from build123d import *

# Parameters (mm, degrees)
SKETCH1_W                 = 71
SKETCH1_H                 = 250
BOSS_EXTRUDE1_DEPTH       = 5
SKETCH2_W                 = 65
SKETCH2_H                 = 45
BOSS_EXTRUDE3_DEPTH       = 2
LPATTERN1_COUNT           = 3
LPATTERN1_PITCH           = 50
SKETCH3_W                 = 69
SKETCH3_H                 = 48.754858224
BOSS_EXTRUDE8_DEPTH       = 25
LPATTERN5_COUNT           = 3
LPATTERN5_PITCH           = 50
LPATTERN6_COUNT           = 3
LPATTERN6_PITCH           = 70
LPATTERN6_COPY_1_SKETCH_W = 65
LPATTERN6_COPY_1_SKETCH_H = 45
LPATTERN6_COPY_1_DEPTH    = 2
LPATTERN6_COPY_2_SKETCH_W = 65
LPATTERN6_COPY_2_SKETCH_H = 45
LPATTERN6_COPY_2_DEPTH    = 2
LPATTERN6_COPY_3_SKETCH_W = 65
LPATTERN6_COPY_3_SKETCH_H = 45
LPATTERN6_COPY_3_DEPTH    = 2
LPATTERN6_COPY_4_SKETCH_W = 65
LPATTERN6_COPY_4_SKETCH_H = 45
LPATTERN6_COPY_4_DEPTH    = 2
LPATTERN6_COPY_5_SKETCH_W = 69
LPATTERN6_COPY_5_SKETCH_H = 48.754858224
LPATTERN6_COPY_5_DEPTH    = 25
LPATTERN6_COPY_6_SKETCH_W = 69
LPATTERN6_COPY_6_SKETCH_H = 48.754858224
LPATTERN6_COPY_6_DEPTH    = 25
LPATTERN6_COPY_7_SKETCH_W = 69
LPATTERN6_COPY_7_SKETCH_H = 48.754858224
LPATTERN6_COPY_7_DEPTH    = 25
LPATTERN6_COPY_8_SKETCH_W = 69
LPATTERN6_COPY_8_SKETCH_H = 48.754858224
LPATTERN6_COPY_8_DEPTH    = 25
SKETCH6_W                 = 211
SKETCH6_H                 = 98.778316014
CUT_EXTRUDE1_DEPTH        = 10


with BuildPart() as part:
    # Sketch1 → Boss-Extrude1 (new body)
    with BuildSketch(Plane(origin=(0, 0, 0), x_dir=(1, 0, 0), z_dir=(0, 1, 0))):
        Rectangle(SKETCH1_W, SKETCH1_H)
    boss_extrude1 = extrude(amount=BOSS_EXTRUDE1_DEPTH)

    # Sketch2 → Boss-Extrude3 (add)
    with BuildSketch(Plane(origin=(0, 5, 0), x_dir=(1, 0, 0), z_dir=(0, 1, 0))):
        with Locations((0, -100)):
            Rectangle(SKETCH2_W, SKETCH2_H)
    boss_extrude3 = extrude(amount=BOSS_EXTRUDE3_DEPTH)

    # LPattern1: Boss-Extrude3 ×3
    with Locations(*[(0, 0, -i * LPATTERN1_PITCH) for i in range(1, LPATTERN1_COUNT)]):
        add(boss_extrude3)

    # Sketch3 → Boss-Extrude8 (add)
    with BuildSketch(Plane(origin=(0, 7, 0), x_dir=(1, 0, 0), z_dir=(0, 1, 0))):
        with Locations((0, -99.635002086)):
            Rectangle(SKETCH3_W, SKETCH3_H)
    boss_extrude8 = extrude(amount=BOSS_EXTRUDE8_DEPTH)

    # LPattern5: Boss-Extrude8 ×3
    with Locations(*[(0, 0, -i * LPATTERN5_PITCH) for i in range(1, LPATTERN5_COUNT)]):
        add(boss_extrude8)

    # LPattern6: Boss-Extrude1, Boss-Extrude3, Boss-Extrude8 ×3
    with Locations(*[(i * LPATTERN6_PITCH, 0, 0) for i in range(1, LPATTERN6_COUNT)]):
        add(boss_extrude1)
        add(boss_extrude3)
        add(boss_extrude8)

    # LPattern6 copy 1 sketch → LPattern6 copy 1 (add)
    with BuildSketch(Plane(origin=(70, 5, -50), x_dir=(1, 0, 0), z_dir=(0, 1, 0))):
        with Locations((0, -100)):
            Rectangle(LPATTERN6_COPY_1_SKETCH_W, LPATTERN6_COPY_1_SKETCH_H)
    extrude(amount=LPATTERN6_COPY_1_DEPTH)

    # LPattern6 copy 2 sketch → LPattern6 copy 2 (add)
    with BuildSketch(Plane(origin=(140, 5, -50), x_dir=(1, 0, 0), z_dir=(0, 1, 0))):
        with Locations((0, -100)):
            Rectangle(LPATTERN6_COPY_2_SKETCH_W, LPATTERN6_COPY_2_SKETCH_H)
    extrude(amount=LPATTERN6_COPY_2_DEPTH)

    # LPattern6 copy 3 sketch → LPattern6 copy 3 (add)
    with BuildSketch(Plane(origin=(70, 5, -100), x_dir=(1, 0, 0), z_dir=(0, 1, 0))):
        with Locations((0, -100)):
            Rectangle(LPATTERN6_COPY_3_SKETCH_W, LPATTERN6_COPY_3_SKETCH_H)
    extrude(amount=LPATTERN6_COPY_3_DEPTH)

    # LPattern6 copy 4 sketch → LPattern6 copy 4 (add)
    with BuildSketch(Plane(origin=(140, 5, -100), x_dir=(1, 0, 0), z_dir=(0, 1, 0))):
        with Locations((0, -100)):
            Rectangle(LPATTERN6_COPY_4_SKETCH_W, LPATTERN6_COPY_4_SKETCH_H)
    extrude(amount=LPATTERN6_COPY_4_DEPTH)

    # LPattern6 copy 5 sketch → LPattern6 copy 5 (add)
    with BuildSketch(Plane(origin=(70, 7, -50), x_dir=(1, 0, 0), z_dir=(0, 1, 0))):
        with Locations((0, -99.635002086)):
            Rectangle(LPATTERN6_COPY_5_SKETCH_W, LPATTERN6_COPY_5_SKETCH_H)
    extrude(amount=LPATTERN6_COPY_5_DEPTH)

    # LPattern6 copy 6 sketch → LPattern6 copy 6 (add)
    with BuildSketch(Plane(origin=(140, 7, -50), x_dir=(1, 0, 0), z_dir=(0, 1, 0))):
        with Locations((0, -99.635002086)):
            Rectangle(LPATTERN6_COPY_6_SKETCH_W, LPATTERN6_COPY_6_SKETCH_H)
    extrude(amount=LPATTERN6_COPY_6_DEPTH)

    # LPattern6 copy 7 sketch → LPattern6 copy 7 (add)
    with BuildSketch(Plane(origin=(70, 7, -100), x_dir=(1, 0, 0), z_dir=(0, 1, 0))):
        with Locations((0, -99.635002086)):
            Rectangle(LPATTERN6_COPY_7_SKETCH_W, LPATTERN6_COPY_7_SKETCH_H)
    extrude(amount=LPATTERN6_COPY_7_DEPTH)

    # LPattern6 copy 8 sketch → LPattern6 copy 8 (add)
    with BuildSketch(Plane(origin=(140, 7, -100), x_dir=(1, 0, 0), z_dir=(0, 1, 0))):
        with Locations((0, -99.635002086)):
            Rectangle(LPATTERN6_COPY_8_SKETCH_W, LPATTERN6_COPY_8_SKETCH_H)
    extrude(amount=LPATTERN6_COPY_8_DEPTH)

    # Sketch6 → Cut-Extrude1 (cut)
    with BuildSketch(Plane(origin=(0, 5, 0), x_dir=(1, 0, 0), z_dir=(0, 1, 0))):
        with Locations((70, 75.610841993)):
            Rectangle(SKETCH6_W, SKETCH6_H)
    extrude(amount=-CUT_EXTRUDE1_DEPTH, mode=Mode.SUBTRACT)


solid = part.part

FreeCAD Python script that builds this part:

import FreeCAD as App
import Part
import Sketcher

doc = App.newDocument("Part")
body = doc.addObject("PartDesign::Body", "Body")

# Sketch on XZ plane
sketch1 = doc.addObject("Sketcher::SketchObject", "Sketch")
body.addObject(sketch1)
sketch1.AttachmentSupport = (doc.XZ_Plane, [""])
sketch1.MapMode = "FlatFace"
sketch1.addGeometry(Part.LineSegment(App.Vector(-36, -125, 0), App.Vector(-36, 125, 0)), False)
sketch1.addGeometry(Part.LineSegment(App.Vector(-36, 125, 0), App.Vector(36, 125, 0)), False)
sketch1.addGeometry(Part.LineSegment(App.Vector(36, 125, 0), App.Vector(36, -125, 0)), False)
sketch1.addGeometry(Part.LineSegment(App.Vector(36, -125, 0), App.Vector(-36, -125, 0)), False)
sketch1.addConstraint(Sketcher.Constraint("Coincident", 0, 2, 1, 1))
sketch1.addConstraint(Sketcher.Constraint("Coincident", 1, 2, 2, 1))
sketch1.addConstraint(Sketcher.Constraint("Coincident", 2, 2, 3, 1))
sketch1.addConstraint(Sketcher.Constraint("Coincident", 3, 2, 0, 1))
sketch1.addConstraint(Sketcher.Constraint("Vertical", 0))
sketch1.addConstraint(Sketcher.Constraint("Horizontal", 1))
sketch1.addConstraint(Sketcher.Constraint("Vertical", 2))
sketch1.addConstraint(Sketcher.Constraint("Horizontal", 3))
sketch1.addConstraint(Sketcher.Constraint("Symmetric", 0, 2, 2, 2, -1, 1))
sketch1.addConstraint(Sketcher.Constraint("DistanceX", 1, 1, 1, 2, 71.0))
sketch1.addConstraint(Sketcher.Constraint("DistanceY", 0, 1, 0, 2, 250.0))
pad1 = doc.addObject("PartDesign::Pad", "Pad")
body.addObject(pad1)
pad1.Profile = sketch1
pad1.Length = 5
pad1.Reversed = True

# Sketch on XZ plane
sketch2 = doc.addObject("Sketcher::SketchObject", "Sketch001")
body.addObject(sketch2)
sketch2.AttachmentSupport = (doc.XZ_Plane, [""])
sketch2.MapMode = "FlatFace"
sketch2.AttachmentOffset = App.Placement(App.Vector(0, 0, -5), App.Rotation())
sketch2.addGeometry(Part.LineSegment(App.Vector(-32, 78, 0), App.Vector(-32, 122, 0)), False)
sketch2.addGeometry(Part.LineSegment(App.Vector(-32, 122, 0), App.Vector(32, 122, 0)), False)
sketch2.addGeometry(Part.LineSegment(App.Vector(32, 122, 0), App.Vector(32, 78, 0)), False)
sketch2.addGeometry(Part.LineSegment(App.Vector(32, 78, 0), App.Vector(-32, 78, 0)), False)
sketch2.addConstraint(Sketcher.Constraint("Coincident", 0, 2, 1, 1))
sketch2.addConstraint(Sketcher.Constraint("Coincident", 1, 2, 2, 1))
sketch2.addConstraint(Sketcher.Constraint("Coincident", 2, 2, 3, 1))
sketch2.addConstraint(Sketcher.Constraint("Coincident", 3, 2, 0, 1))
sketch2.addConstraint(Sketcher.Constraint("Vertical", 0))
sketch2.addConstraint(Sketcher.Constraint("Horizontal", 1))
sketch2.addConstraint(Sketcher.Constraint("Vertical", 2))
sketch2.addConstraint(Sketcher.Constraint("Horizontal", 3))
sketch2.addConstraint(Sketcher.Constraint("DistanceX", 1, 1, 1, 2, 65.0))
sketch2.addConstraint(Sketcher.Constraint("DistanceY", 0, 1, 0, 2, 45.0))
sketch2.addConstraint(Sketcher.Constraint("DistanceX", 0, 2, -1, 1, 32.5))
sketch2.addConstraint(Sketcher.Constraint("DistanceY", -1, 1, 0, 2, 122.5))
pad2 = doc.addObject("PartDesign::Pad", "Pad001")
body.addObject(pad2)
pad2.Profile = sketch2
pad2.Length = 2
pad2.Reversed = True
doc.recompute()

linearpattern = doc.addObject("PartDesign::LinearPattern", "LinearPattern")
body.addObject(linearpattern)
linearpattern.Originals = [pad2]
linearpattern.Direction = (doc.Z_Axis, [""])
linearpattern.Mode = "offset"
linearpattern.Offset = 50
linearpattern.Occurrences = 3
linearpattern.Reversed = True
body.Tip = linearpattern

# Sketch on XZ plane
sketch3 = doc.addObject("Sketcher::SketchObject", "Sketch002")
body.addObject(sketch3)
sketch3.AttachmentSupport = (doc.XZ_Plane, [""])
sketch3.MapMode = "FlatFace"
sketch3.AttachmentOffset = App.Placement(App.Vector(0, 0, -7), App.Rotation())
sketch3.addGeometry(Part.LineSegment(App.Vector(-34, 75, 0), App.Vector(-34, 124, 0)), False)
sketch3.addGeometry(Part.LineSegment(App.Vector(-34, 124, 0), App.Vector(34, 124, 0)), False)
sketch3.addGeometry(Part.LineSegment(App.Vector(34, 124, 0), App.Vector(34, 75, 0)), False)
sketch3.addGeometry(Part.LineSegment(App.Vector(34, 75, 0), App.Vector(-34, 75, 0)), False)
sketch3.addConstraint(Sketcher.Constraint("Coincident", 0, 2, 1, 1))
sketch3.addConstraint(Sketcher.Constraint("Coincident", 1, 2, 2, 1))
sketch3.addConstraint(Sketcher.Constraint("Coincident", 2, 2, 3, 1))
sketch3.addConstraint(Sketcher.Constraint("Coincident", 3, 2, 0, 1))
sketch3.addConstraint(Sketcher.Constraint("Vertical", 0))
sketch3.addConstraint(Sketcher.Constraint("Horizontal", 1))
sketch3.addConstraint(Sketcher.Constraint("Vertical", 2))
sketch3.addConstraint(Sketcher.Constraint("Horizontal", 3))
sketch3.addConstraint(Sketcher.Constraint("DistanceX", 1, 1, 1, 2, 69.0))
sketch3.addConstraint(Sketcher.Constraint("DistanceX", 0, 2, -1, 1, 34.5))
sketch3.addConstraint(Sketcher.Constraint("DistanceY", 0, 1, 0, 2, 48.754858))
sketch3.addConstraint(Sketcher.Constraint("DistanceY", -1, 1, 0, 2, 124.012431))
pad3 = doc.addObject("PartDesign::Pad", "Pad002")
body.addObject(pad3)
pad3.Profile = sketch3
pad3.Length = 25
pad3.Reversed = True
doc.recompute()

linearpattern2 = doc.addObject("PartDesign::LinearPattern", "LinearPattern001")
body.addObject(linearpattern2)
linearpattern2.Originals = [pad3]
linearpattern2.Direction = (doc.Z_Axis, [""])
linearpattern2.Mode = "offset"
linearpattern2.Offset = 50
linearpattern2.Occurrences = 3
linearpattern2.Reversed = True
body.Tip = linearpattern2
doc.recompute()

linearpattern3 = doc.addObject("PartDesign::LinearPattern", "LinearPattern002")
body.addObject(linearpattern3)
linearpattern3.Originals = [pad1, pad2, pad3]
linearpattern3.Direction = (doc.X_Axis, [""])
linearpattern3.Mode = "offset"
linearpattern3.Offset = 70
linearpattern3.Occurrences = 3
body.Tip = linearpattern3

# Sketch on XZ plane
sketch4 = doc.addObject("Sketcher::SketchObject", "Sketch003")
body.addObject(sketch4)
sketch4.AttachmentSupport = (doc.XZ_Plane, [""])
sketch4.MapMode = "FlatFace"
sketch4.AttachmentOffset = App.Placement(App.Vector(0, 0, -5), App.Rotation())
sketch4.addGeometry(Part.LineSegment(App.Vector(38, 28, 0), App.Vector(38, 72, 0)), False)
sketch4.addGeometry(Part.LineSegment(App.Vector(38, 72, 0), App.Vector(102, 72, 0)), False)
sketch4.addGeometry(Part.LineSegment(App.Vector(102, 72, 0), App.Vector(102, 28, 0)), False)
sketch4.addGeometry(Part.LineSegment(App.Vector(102, 28, 0), App.Vector(38, 28, 0)), False)
sketch4.addConstraint(Sketcher.Constraint("Coincident", 0, 2, 1, 1))
sketch4.addConstraint(Sketcher.Constraint("Coincident", 1, 2, 2, 1))
sketch4.addConstraint(Sketcher.Constraint("Coincident", 2, 2, 3, 1))
sketch4.addConstraint(Sketcher.Constraint("Coincident", 3, 2, 0, 1))
sketch4.addConstraint(Sketcher.Constraint("Vertical", 0))
sketch4.addConstraint(Sketcher.Constraint("Horizontal", 1))
sketch4.addConstraint(Sketcher.Constraint("Vertical", 2))
sketch4.addConstraint(Sketcher.Constraint("Horizontal", 3))
sketch4.addConstraint(Sketcher.Constraint("DistanceX", 1, 1, 1, 2, 65.0))
sketch4.addConstraint(Sketcher.Constraint("DistanceY", 0, 1, 0, 2, 45.0))
sketch4.addConstraint(Sketcher.Constraint("DistanceX", -1, 1, 0, 2, 37.5))
sketch4.addConstraint(Sketcher.Constraint("DistanceY", -1, 1, 0, 2, 72.5))
pad4 = doc.addObject("PartDesign::Pad", "Pad003")
body.addObject(pad4)
pad4.Profile = sketch4
pad4.Length = 2
pad4.Reversed = True

# Sketch on XZ plane
sketch5 = doc.addObject("Sketcher::SketchObject", "Sketch004")
body.addObject(sketch5)
sketch5.AttachmentSupport = (doc.XZ_Plane, [""])
sketch5.MapMode = "FlatFace"
sketch5.AttachmentOffset = App.Placement(App.Vector(0, 0, -5), App.Rotation())
sketch5.addGeometry(Part.LineSegment(App.Vector(108, 28, 0), App.Vector(108, 72, 0)), False)
sketch5.addGeometry(Part.LineSegment(App.Vector(108, 72, 0), App.Vector(172, 72, 0)), False)
sketch5.addGeometry(Part.LineSegment(App.Vector(172, 72, 0), App.Vector(172, 28, 0)), False)
sketch5.addGeometry(Part.LineSegment(App.Vector(172, 28, 0), App.Vector(108, 28, 0)), False)
sketch5.addConstraint(Sketcher.Constraint("Coincident", 0, 2, 1, 1))
sketch5.addConstraint(Sketcher.Constraint("Coincident", 1, 2, 2, 1))
sketch5.addConstraint(Sketcher.Constraint("Coincident", 2, 2, 3, 1))
sketch5.addConstraint(Sketcher.Constraint("Coincident", 3, 2, 0, 1))
sketch5.addConstraint(Sketcher.Constraint("Vertical", 0))
sketch5.addConstraint(Sketcher.Constraint("Horizontal", 1))
sketch5.addConstraint(Sketcher.Constraint("Vertical", 2))
sketch5.addConstraint(Sketcher.Constraint("Horizontal", 3))
sketch5.addConstraint(Sketcher.Constraint("DistanceX", 1, 1, 1, 2, 65.0))
sketch5.addConstraint(Sketcher.Constraint("DistanceY", 0, 1, 0, 2, 45.0))
sketch5.addConstraint(Sketcher.Constraint("DistanceX", -1, 1, 0, 2, 107.5))
sketch5.addConstraint(Sketcher.Constraint("DistanceY", -1, 1, 0, 2, 72.5))
pad5 = doc.addObject("PartDesign::Pad", "Pad004")
body.addObject(pad5)
pad5.Profile = sketch5
pad5.Length = 2
pad5.Reversed = True

# Sketch on XZ plane
sketch6 = doc.addObject("Sketcher::SketchObject", "Sketch005")
body.addObject(sketch6)
sketch6.AttachmentSupport = (doc.XZ_Plane, [""])
sketch6.MapMode = "FlatFace"
sketch6.AttachmentOffset = App.Placement(App.Vector(0, 0, -5), App.Rotation())
sketch6.addGeometry(Part.LineSegment(App.Vector(38, -22, 0), App.Vector(38, 22, 0)), False)
sketch6.addGeometry(Part.LineSegment(App.Vector(38, 22, 0), App.Vector(102, 22, 0)), False)
sketch6.addGeometry(Part.LineSegment(App.Vector(102, 22, 0), App.Vector(102, -22, 0)), False)
sketch6.addGeometry(Part.LineSegment(App.Vector(102, -22, 0), App.Vector(38, -22, 0)), False)
sketch6.addConstraint(Sketcher.Constraint("Coincident", 0, 2, 1, 1))
sketch6.addConstraint(Sketcher.Constraint("Coincident", 1, 2, 2, 1))
sketch6.addConstraint(Sketcher.Constraint("Coincident", 2, 2, 3, 1))
sketch6.addConstraint(Sketcher.Constraint("Coincident", 3, 2, 0, 1))
sketch6.addConstraint(Sketcher.Constraint("Vertical", 0))
sketch6.addConstraint(Sketcher.Constraint("Horizontal", 1))
sketch6.addConstraint(Sketcher.Constraint("Vertical", 2))
sketch6.addConstraint(Sketcher.Constraint("Horizontal", 3))
sketch6.addConstraint(Sketcher.Constraint("DistanceX", 1, 1, 1, 2, 65.0))
sketch6.addConstraint(Sketcher.Constraint("DistanceY", 0, 1, 0, 2, 45.0))
sketch6.addConstraint(Sketcher.Constraint("DistanceX", -1, 1, 0, 2, 37.5))
sketch6.addConstraint(Sketcher.Constraint("DistanceY", -1, 1, 0, 2, 22.5))
pad6 = doc.addObject("PartDesign::Pad", "Pad005")
body.addObject(pad6)
pad6.Profile = sketch6
pad6.Length = 2
pad6.Reversed = True

# Sketch on XZ plane
sketch7 = doc.addObject("Sketcher::SketchObject", "Sketch006")
body.addObject(sketch7)
sketch7.AttachmentSupport = (doc.XZ_Plane, [""])
sketch7.MapMode = "FlatFace"
sketch7.AttachmentOffset = App.Placement(App.Vector(0, 0, -5), App.Rotation())
sketch7.addGeometry(Part.LineSegment(App.Vector(108, -22, 0), App.Vector(108, 22, 0)), False)
sketch7.addGeometry(Part.LineSegment(App.Vector(108, 22, 0), App.Vector(172, 22, 0)), False)
sketch7.addGeometry(Part.LineSegment(App.Vector(172, 22, 0), App.Vector(172, -22, 0)), False)
sketch7.addGeometry(Part.LineSegment(App.Vector(172, -22, 0), App.Vector(108, -22, 0)), False)
sketch7.addConstraint(Sketcher.Constraint("Coincident", 0, 2, 1, 1))
sketch7.addConstraint(Sketcher.Constraint("Coincident", 1, 2, 2, 1))
sketch7.addConstraint(Sketcher.Constraint("Coincident", 2, 2, 3, 1))
sketch7.addConstraint(Sketcher.Constraint("Coincident", 3, 2, 0, 1))
sketch7.addConstraint(Sketcher.Constraint("Vertical", 0))
sketch7.addConstraint(Sketcher.Constraint("Horizontal", 1))
sketch7.addConstraint(Sketcher.Constraint("Vertical", 2))
sketch7.addConstraint(Sketcher.Constraint("Horizontal", 3))
sketch7.addConstraint(Sketcher.Constraint("DistanceX", 1, 1, 1, 2, 65.0))
sketch7.addConstraint(Sketcher.Constraint("DistanceY", 0, 1, 0, 2, 45.0))
sketch7.addConstraint(Sketcher.Constraint("DistanceX", -1, 1, 0, 2, 107.5))
sketch7.addConstraint(Sketcher.Constraint("DistanceY", -1, 1, 0, 2, 22.5))
pad7 = doc.addObject("PartDesign::Pad", "Pad006")
body.addObject(pad7)
pad7.Profile = sketch7
pad7.Length = 2
pad7.Reversed = True

# Sketch on XZ plane
sketch8 = doc.addObject("Sketcher::SketchObject", "Sketch007")
body.addObject(sketch8)
sketch8.AttachmentSupport = (doc.XZ_Plane, [""])
sketch8.MapMode = "FlatFace"
sketch8.AttachmentOffset = App.Placement(App.Vector(0, 0, -7), App.Rotation())
sketch8.addGeometry(Part.LineSegment(App.Vector(36, 25, 0), App.Vector(36, 74, 0)), False)
sketch8.addGeometry(Part.LineSegment(App.Vector(36, 74, 0), App.Vector(104, 74, 0)), False)
sketch8.addGeometry(Part.LineSegment(App.Vector(104, 74, 0), App.Vector(104, 25, 0)), False)
sketch8.addGeometry(Part.LineSegment(App.Vector(104, 25, 0), App.Vector(36, 25, 0)), False)
sketch8.addConstraint(Sketcher.Constraint("Coincident", 0, 2, 1, 1))
sketch8.addConstraint(Sketcher.Constraint("Coincident", 1, 2, 2, 1))
sketch8.addConstraint(Sketcher.Constraint("Coincident", 2, 2, 3, 1))
sketch8.addConstraint(Sketcher.Constraint("Coincident", 3, 2, 0, 1))
sketch8.addConstraint(Sketcher.Constraint("Vertical", 0))
sketch8.addConstraint(Sketcher.Constraint("Horizontal", 1))
sketch8.addConstraint(Sketcher.Constraint("Vertical", 2))
sketch8.addConstraint(Sketcher.Constraint("Horizontal", 3))
sketch8.addConstraint(Sketcher.Constraint("DistanceX", 1, 1, 1, 2, 69.0))
sketch8.addConstraint(Sketcher.Constraint("DistanceX", -1, 1, 0, 2, 35.5))
sketch8.addConstraint(Sketcher.Constraint("DistanceY", 0, 1, 0, 2, 48.754858))
sketch8.addConstraint(Sketcher.Constraint("DistanceY", -1, 1, 0, 2, 74.012431))
pad8 = doc.addObject("PartDesign::Pad", "Pad007")
body.addObject(pad8)
pad8.Profile = sketch8
pad8.Length = 25
pad8.Reversed = True

# Sketch on XZ plane
sketch9 = doc.addObject("Sketcher::SketchObject", "Sketch008")
body.addObject(sketch9)
sketch9.AttachmentSupport = (doc.XZ_Plane, [""])
sketch9.MapMode = "FlatFace"
sketch9.AttachmentOffset = App.Placement(App.Vector(0, 0, -7), App.Rotation())
sketch9.addGeometry(Part.LineSegment(App.Vector(106, 25, 0), App.Vector(106, 74, 0)), False)
sketch9.addGeometry(Part.LineSegment(App.Vector(106, 74, 0), App.Vector(174, 74, 0)), False)
sketch9.addGeometry(Part.LineSegment(App.Vector(174, 74, 0), App.Vector(174, 25, 0)), False)
sketch9.addGeometry(Part.LineSegment(App.Vector(174, 25, 0), App.Vector(106, 25, 0)), False)
sketch9.addConstraint(Sketcher.Constraint("Coincident", 0, 2, 1, 1))
sketch9.addConstraint(Sketcher.Constraint("Coincident", 1, 2, 2, 1))
sketch9.addConstraint(Sketcher.Constraint("Coincident", 2, 2, 3, 1))
sketch9.addConstraint(Sketcher.Constraint("Coincident", 3, 2, 0, 1))
sketch9.addConstraint(Sketcher.Constraint("Vertical", 0))
sketch9.addConstraint(Sketcher.Constraint("Horizontal", 1))
sketch9.addConstraint(Sketcher.Constraint("Vertical", 2))
sketch9.addConstraint(Sketcher.Constraint("Horizontal", 3))
sketch9.addConstraint(Sketcher.Constraint("DistanceX", 1, 1, 1, 2, 69.0))
sketch9.addConstraint(Sketcher.Constraint("DistanceX", -1, 1, 0, 2, 105.5))
sketch9.addConstraint(Sketcher.Constraint("DistanceY", 0, 1, 0, 2, 48.754858))
sketch9.addConstraint(Sketcher.Constraint("DistanceY", -1, 1, 0, 2, 74.012431))
pad9 = doc.addObject("PartDesign::Pad", "Pad008")
body.addObject(pad9)
pad9.Profile = sketch9
pad9.Length = 25
pad9.Reversed = True

# Sketch on XZ plane
sketch10 = doc.addObject("Sketcher::SketchObject", "Sketch009")
body.addObject(sketch10)
sketch10.AttachmentSupport = (doc.XZ_Plane, [""])
sketch10.MapMode = "FlatFace"
sketch10.AttachmentOffset = App.Placement(App.Vector(0, 0, -7), App.Rotation())
sketch10.addGeometry(Part.LineSegment(App.Vector(36, -25, 0), App.Vector(36, 24, 0)), False)
sketch10.addGeometry(Part.LineSegment(App.Vector(36, 24, 0), App.Vector(104, 24, 0)), False)
sketch10.addGeometry(Part.LineSegment(App.Vector(104, 24, 0), App.Vector(104, -25, 0)), False)
sketch10.addGeometry(Part.LineSegment(App.Vector(104, -25, 0), App.Vector(36, -25, 0)), False)
sketch10.addConstraint(Sketcher.Constraint("Coincident", 0, 2, 1, 1))
sketch10.addConstraint(Sketcher.Constraint("Coincident", 1, 2, 2, 1))
sketch10.addConstraint(Sketcher.Constraint("Coincident", 2, 2, 3, 1))
sketch10.addConstraint(Sketcher.Constraint("Coincident", 3, 2, 0, 1))
sketch10.addConstraint(Sketcher.Constraint("Vertical", 0))
sketch10.addConstraint(Sketcher.Constraint("Horizontal", 1))
sketch10.addConstraint(Sketcher.Constraint("Vertical", 2))
sketch10.addConstraint(Sketcher.Constraint("Horizontal", 3))
sketch10.addConstraint(Sketcher.Constraint("DistanceX", 1, 1, 1, 2, 69.0))
sketch10.addConstraint(Sketcher.Constraint("DistanceX", -1, 1, 0, 2, 35.5))
sketch10.addConstraint(Sketcher.Constraint("DistanceY", 0, 1, 0, 2, 48.754858))
sketch10.addConstraint(Sketcher.Constraint("DistanceY", -1, 1, 0, 2, 24.012431))
pad10 = doc.addObject("PartDesign::Pad", "Pad009")
body.addObject(pad10)
pad10.Profile = sketch10
pad10.Length = 25
pad10.Reversed = True

# Sketch on XZ plane
sketch11 = doc.addObject("Sketcher::SketchObject", "Sketch010")
body.addObject(sketch11)
sketch11.AttachmentSupport = (doc.XZ_Plane, [""])
sketch11.MapMode = "FlatFace"
sketch11.AttachmentOffset = App.Placement(App.Vector(0, 0, -7), App.Rotation())
sketch11.addGeometry(Part.LineSegment(App.Vector(106, -25, 0), App.Vector(106, 24, 0)), False)
sketch11.addGeometry(Part.LineSegment(App.Vector(106, 24, 0), App.Vector(174, 24, 0)), False)
sketch11.addGeometry(Part.LineSegment(App.Vector(174, 24, 0), App.Vector(174, -25, 0)), False)
sketch11.addGeometry(Part.LineSegment(App.Vector(174, -25, 0), App.Vector(106, -25, 0)), False)
sketch11.addConstraint(Sketcher.Constraint("Coincident", 0, 2, 1, 1))
sketch11.addConstraint(Sketcher.Constraint("Coincident", 1, 2, 2, 1))
sketch11.addConstraint(Sketcher.Constraint("Coincident", 2, 2, 3, 1))
sketch11.addConstraint(Sketcher.Constraint("Coincident", 3, 2, 0, 1))
sketch11.addConstraint(Sketcher.Constraint("Vertical", 0))
sketch11.addConstraint(Sketcher.Constraint("Horizontal", 1))
sketch11.addConstraint(Sketcher.Constraint("Vertical", 2))
sketch11.addConstraint(Sketcher.Constraint("Horizontal", 3))
sketch11.addConstraint(Sketcher.Constraint("DistanceX", 1, 1, 1, 2, 69.0))
sketch11.addConstraint(Sketcher.Constraint("DistanceX", -1, 1, 0, 2, 105.5))
sketch11.addConstraint(Sketcher.Constraint("DistanceY", 0, 1, 0, 2, 48.754858))
sketch11.addConstraint(Sketcher.Constraint("DistanceY", -1, 1, 0, 2, 24.012431))
pad11 = doc.addObject("PartDesign::Pad", "Pad010")
body.addObject(pad11)
pad11.Profile = sketch11
pad11.Length = 25
pad11.Reversed = True

# Sketch on XZ plane
sketch12 = doc.addObject("Sketcher::SketchObject", "Sketch011")
body.addObject(sketch12)
sketch12.AttachmentSupport = (doc.XZ_Plane, [""])
sketch12.MapMode = "FlatFace"
sketch12.AttachmentOffset = App.Placement(App.Vector(0, 0, -5), App.Rotation())
sketch12.addGeometry(Part.LineSegment(App.Vector(-36, -125, 0), App.Vector(-36, -26, 0)), False)
sketch12.addGeometry(Part.LineSegment(App.Vector(-36, -26, 0), App.Vector(176, -26, 0)), False)
sketch12.addGeometry(Part.LineSegment(App.Vector(176, -26, 0), App.Vector(176, -125, 0)), False)
sketch12.addGeometry(Part.LineSegment(App.Vector(176, -125, 0), App.Vector(-36, -125, 0)), False)
sketch12.addConstraint(Sketcher.Constraint("Coincident", 0, 2, 1, 1))
sketch12.addConstraint(Sketcher.Constraint("Coincident", 1, 2, 2, 1))
sketch12.addConstraint(Sketcher.Constraint("Coincident", 2, 2, 3, 1))
sketch12.addConstraint(Sketcher.Constraint("Coincident", 3, 2, 0, 1))
sketch12.addConstraint(Sketcher.Constraint("Vertical", 0))
sketch12.addConstraint(Sketcher.Constraint("Horizontal", 1))
sketch12.addConstraint(Sketcher.Constraint("Vertical", 2))
sketch12.addConstraint(Sketcher.Constraint("Horizontal", 3))
sketch12.addConstraint(Sketcher.Constraint("DistanceX", 1, 1, 1, 2, 211.0))
sketch12.addConstraint(Sketcher.Constraint("DistanceY", 2, 2, -1, 1, 125.0))
sketch12.addConstraint(Sketcher.Constraint("DistanceX", 0, 2, -1, 1, 35.5))
sketch12.addConstraint(Sketcher.Constraint("DistanceY", 0, 1, 0, 2, 98.778316))
pocket1 = doc.addObject("PartDesign::Pocket", "Pocket")
body.addObject(pocket1)
pocket1.Profile = sketch12
pocket1.Length = 10
pocket1.Reversed = True

doc.recompute()
